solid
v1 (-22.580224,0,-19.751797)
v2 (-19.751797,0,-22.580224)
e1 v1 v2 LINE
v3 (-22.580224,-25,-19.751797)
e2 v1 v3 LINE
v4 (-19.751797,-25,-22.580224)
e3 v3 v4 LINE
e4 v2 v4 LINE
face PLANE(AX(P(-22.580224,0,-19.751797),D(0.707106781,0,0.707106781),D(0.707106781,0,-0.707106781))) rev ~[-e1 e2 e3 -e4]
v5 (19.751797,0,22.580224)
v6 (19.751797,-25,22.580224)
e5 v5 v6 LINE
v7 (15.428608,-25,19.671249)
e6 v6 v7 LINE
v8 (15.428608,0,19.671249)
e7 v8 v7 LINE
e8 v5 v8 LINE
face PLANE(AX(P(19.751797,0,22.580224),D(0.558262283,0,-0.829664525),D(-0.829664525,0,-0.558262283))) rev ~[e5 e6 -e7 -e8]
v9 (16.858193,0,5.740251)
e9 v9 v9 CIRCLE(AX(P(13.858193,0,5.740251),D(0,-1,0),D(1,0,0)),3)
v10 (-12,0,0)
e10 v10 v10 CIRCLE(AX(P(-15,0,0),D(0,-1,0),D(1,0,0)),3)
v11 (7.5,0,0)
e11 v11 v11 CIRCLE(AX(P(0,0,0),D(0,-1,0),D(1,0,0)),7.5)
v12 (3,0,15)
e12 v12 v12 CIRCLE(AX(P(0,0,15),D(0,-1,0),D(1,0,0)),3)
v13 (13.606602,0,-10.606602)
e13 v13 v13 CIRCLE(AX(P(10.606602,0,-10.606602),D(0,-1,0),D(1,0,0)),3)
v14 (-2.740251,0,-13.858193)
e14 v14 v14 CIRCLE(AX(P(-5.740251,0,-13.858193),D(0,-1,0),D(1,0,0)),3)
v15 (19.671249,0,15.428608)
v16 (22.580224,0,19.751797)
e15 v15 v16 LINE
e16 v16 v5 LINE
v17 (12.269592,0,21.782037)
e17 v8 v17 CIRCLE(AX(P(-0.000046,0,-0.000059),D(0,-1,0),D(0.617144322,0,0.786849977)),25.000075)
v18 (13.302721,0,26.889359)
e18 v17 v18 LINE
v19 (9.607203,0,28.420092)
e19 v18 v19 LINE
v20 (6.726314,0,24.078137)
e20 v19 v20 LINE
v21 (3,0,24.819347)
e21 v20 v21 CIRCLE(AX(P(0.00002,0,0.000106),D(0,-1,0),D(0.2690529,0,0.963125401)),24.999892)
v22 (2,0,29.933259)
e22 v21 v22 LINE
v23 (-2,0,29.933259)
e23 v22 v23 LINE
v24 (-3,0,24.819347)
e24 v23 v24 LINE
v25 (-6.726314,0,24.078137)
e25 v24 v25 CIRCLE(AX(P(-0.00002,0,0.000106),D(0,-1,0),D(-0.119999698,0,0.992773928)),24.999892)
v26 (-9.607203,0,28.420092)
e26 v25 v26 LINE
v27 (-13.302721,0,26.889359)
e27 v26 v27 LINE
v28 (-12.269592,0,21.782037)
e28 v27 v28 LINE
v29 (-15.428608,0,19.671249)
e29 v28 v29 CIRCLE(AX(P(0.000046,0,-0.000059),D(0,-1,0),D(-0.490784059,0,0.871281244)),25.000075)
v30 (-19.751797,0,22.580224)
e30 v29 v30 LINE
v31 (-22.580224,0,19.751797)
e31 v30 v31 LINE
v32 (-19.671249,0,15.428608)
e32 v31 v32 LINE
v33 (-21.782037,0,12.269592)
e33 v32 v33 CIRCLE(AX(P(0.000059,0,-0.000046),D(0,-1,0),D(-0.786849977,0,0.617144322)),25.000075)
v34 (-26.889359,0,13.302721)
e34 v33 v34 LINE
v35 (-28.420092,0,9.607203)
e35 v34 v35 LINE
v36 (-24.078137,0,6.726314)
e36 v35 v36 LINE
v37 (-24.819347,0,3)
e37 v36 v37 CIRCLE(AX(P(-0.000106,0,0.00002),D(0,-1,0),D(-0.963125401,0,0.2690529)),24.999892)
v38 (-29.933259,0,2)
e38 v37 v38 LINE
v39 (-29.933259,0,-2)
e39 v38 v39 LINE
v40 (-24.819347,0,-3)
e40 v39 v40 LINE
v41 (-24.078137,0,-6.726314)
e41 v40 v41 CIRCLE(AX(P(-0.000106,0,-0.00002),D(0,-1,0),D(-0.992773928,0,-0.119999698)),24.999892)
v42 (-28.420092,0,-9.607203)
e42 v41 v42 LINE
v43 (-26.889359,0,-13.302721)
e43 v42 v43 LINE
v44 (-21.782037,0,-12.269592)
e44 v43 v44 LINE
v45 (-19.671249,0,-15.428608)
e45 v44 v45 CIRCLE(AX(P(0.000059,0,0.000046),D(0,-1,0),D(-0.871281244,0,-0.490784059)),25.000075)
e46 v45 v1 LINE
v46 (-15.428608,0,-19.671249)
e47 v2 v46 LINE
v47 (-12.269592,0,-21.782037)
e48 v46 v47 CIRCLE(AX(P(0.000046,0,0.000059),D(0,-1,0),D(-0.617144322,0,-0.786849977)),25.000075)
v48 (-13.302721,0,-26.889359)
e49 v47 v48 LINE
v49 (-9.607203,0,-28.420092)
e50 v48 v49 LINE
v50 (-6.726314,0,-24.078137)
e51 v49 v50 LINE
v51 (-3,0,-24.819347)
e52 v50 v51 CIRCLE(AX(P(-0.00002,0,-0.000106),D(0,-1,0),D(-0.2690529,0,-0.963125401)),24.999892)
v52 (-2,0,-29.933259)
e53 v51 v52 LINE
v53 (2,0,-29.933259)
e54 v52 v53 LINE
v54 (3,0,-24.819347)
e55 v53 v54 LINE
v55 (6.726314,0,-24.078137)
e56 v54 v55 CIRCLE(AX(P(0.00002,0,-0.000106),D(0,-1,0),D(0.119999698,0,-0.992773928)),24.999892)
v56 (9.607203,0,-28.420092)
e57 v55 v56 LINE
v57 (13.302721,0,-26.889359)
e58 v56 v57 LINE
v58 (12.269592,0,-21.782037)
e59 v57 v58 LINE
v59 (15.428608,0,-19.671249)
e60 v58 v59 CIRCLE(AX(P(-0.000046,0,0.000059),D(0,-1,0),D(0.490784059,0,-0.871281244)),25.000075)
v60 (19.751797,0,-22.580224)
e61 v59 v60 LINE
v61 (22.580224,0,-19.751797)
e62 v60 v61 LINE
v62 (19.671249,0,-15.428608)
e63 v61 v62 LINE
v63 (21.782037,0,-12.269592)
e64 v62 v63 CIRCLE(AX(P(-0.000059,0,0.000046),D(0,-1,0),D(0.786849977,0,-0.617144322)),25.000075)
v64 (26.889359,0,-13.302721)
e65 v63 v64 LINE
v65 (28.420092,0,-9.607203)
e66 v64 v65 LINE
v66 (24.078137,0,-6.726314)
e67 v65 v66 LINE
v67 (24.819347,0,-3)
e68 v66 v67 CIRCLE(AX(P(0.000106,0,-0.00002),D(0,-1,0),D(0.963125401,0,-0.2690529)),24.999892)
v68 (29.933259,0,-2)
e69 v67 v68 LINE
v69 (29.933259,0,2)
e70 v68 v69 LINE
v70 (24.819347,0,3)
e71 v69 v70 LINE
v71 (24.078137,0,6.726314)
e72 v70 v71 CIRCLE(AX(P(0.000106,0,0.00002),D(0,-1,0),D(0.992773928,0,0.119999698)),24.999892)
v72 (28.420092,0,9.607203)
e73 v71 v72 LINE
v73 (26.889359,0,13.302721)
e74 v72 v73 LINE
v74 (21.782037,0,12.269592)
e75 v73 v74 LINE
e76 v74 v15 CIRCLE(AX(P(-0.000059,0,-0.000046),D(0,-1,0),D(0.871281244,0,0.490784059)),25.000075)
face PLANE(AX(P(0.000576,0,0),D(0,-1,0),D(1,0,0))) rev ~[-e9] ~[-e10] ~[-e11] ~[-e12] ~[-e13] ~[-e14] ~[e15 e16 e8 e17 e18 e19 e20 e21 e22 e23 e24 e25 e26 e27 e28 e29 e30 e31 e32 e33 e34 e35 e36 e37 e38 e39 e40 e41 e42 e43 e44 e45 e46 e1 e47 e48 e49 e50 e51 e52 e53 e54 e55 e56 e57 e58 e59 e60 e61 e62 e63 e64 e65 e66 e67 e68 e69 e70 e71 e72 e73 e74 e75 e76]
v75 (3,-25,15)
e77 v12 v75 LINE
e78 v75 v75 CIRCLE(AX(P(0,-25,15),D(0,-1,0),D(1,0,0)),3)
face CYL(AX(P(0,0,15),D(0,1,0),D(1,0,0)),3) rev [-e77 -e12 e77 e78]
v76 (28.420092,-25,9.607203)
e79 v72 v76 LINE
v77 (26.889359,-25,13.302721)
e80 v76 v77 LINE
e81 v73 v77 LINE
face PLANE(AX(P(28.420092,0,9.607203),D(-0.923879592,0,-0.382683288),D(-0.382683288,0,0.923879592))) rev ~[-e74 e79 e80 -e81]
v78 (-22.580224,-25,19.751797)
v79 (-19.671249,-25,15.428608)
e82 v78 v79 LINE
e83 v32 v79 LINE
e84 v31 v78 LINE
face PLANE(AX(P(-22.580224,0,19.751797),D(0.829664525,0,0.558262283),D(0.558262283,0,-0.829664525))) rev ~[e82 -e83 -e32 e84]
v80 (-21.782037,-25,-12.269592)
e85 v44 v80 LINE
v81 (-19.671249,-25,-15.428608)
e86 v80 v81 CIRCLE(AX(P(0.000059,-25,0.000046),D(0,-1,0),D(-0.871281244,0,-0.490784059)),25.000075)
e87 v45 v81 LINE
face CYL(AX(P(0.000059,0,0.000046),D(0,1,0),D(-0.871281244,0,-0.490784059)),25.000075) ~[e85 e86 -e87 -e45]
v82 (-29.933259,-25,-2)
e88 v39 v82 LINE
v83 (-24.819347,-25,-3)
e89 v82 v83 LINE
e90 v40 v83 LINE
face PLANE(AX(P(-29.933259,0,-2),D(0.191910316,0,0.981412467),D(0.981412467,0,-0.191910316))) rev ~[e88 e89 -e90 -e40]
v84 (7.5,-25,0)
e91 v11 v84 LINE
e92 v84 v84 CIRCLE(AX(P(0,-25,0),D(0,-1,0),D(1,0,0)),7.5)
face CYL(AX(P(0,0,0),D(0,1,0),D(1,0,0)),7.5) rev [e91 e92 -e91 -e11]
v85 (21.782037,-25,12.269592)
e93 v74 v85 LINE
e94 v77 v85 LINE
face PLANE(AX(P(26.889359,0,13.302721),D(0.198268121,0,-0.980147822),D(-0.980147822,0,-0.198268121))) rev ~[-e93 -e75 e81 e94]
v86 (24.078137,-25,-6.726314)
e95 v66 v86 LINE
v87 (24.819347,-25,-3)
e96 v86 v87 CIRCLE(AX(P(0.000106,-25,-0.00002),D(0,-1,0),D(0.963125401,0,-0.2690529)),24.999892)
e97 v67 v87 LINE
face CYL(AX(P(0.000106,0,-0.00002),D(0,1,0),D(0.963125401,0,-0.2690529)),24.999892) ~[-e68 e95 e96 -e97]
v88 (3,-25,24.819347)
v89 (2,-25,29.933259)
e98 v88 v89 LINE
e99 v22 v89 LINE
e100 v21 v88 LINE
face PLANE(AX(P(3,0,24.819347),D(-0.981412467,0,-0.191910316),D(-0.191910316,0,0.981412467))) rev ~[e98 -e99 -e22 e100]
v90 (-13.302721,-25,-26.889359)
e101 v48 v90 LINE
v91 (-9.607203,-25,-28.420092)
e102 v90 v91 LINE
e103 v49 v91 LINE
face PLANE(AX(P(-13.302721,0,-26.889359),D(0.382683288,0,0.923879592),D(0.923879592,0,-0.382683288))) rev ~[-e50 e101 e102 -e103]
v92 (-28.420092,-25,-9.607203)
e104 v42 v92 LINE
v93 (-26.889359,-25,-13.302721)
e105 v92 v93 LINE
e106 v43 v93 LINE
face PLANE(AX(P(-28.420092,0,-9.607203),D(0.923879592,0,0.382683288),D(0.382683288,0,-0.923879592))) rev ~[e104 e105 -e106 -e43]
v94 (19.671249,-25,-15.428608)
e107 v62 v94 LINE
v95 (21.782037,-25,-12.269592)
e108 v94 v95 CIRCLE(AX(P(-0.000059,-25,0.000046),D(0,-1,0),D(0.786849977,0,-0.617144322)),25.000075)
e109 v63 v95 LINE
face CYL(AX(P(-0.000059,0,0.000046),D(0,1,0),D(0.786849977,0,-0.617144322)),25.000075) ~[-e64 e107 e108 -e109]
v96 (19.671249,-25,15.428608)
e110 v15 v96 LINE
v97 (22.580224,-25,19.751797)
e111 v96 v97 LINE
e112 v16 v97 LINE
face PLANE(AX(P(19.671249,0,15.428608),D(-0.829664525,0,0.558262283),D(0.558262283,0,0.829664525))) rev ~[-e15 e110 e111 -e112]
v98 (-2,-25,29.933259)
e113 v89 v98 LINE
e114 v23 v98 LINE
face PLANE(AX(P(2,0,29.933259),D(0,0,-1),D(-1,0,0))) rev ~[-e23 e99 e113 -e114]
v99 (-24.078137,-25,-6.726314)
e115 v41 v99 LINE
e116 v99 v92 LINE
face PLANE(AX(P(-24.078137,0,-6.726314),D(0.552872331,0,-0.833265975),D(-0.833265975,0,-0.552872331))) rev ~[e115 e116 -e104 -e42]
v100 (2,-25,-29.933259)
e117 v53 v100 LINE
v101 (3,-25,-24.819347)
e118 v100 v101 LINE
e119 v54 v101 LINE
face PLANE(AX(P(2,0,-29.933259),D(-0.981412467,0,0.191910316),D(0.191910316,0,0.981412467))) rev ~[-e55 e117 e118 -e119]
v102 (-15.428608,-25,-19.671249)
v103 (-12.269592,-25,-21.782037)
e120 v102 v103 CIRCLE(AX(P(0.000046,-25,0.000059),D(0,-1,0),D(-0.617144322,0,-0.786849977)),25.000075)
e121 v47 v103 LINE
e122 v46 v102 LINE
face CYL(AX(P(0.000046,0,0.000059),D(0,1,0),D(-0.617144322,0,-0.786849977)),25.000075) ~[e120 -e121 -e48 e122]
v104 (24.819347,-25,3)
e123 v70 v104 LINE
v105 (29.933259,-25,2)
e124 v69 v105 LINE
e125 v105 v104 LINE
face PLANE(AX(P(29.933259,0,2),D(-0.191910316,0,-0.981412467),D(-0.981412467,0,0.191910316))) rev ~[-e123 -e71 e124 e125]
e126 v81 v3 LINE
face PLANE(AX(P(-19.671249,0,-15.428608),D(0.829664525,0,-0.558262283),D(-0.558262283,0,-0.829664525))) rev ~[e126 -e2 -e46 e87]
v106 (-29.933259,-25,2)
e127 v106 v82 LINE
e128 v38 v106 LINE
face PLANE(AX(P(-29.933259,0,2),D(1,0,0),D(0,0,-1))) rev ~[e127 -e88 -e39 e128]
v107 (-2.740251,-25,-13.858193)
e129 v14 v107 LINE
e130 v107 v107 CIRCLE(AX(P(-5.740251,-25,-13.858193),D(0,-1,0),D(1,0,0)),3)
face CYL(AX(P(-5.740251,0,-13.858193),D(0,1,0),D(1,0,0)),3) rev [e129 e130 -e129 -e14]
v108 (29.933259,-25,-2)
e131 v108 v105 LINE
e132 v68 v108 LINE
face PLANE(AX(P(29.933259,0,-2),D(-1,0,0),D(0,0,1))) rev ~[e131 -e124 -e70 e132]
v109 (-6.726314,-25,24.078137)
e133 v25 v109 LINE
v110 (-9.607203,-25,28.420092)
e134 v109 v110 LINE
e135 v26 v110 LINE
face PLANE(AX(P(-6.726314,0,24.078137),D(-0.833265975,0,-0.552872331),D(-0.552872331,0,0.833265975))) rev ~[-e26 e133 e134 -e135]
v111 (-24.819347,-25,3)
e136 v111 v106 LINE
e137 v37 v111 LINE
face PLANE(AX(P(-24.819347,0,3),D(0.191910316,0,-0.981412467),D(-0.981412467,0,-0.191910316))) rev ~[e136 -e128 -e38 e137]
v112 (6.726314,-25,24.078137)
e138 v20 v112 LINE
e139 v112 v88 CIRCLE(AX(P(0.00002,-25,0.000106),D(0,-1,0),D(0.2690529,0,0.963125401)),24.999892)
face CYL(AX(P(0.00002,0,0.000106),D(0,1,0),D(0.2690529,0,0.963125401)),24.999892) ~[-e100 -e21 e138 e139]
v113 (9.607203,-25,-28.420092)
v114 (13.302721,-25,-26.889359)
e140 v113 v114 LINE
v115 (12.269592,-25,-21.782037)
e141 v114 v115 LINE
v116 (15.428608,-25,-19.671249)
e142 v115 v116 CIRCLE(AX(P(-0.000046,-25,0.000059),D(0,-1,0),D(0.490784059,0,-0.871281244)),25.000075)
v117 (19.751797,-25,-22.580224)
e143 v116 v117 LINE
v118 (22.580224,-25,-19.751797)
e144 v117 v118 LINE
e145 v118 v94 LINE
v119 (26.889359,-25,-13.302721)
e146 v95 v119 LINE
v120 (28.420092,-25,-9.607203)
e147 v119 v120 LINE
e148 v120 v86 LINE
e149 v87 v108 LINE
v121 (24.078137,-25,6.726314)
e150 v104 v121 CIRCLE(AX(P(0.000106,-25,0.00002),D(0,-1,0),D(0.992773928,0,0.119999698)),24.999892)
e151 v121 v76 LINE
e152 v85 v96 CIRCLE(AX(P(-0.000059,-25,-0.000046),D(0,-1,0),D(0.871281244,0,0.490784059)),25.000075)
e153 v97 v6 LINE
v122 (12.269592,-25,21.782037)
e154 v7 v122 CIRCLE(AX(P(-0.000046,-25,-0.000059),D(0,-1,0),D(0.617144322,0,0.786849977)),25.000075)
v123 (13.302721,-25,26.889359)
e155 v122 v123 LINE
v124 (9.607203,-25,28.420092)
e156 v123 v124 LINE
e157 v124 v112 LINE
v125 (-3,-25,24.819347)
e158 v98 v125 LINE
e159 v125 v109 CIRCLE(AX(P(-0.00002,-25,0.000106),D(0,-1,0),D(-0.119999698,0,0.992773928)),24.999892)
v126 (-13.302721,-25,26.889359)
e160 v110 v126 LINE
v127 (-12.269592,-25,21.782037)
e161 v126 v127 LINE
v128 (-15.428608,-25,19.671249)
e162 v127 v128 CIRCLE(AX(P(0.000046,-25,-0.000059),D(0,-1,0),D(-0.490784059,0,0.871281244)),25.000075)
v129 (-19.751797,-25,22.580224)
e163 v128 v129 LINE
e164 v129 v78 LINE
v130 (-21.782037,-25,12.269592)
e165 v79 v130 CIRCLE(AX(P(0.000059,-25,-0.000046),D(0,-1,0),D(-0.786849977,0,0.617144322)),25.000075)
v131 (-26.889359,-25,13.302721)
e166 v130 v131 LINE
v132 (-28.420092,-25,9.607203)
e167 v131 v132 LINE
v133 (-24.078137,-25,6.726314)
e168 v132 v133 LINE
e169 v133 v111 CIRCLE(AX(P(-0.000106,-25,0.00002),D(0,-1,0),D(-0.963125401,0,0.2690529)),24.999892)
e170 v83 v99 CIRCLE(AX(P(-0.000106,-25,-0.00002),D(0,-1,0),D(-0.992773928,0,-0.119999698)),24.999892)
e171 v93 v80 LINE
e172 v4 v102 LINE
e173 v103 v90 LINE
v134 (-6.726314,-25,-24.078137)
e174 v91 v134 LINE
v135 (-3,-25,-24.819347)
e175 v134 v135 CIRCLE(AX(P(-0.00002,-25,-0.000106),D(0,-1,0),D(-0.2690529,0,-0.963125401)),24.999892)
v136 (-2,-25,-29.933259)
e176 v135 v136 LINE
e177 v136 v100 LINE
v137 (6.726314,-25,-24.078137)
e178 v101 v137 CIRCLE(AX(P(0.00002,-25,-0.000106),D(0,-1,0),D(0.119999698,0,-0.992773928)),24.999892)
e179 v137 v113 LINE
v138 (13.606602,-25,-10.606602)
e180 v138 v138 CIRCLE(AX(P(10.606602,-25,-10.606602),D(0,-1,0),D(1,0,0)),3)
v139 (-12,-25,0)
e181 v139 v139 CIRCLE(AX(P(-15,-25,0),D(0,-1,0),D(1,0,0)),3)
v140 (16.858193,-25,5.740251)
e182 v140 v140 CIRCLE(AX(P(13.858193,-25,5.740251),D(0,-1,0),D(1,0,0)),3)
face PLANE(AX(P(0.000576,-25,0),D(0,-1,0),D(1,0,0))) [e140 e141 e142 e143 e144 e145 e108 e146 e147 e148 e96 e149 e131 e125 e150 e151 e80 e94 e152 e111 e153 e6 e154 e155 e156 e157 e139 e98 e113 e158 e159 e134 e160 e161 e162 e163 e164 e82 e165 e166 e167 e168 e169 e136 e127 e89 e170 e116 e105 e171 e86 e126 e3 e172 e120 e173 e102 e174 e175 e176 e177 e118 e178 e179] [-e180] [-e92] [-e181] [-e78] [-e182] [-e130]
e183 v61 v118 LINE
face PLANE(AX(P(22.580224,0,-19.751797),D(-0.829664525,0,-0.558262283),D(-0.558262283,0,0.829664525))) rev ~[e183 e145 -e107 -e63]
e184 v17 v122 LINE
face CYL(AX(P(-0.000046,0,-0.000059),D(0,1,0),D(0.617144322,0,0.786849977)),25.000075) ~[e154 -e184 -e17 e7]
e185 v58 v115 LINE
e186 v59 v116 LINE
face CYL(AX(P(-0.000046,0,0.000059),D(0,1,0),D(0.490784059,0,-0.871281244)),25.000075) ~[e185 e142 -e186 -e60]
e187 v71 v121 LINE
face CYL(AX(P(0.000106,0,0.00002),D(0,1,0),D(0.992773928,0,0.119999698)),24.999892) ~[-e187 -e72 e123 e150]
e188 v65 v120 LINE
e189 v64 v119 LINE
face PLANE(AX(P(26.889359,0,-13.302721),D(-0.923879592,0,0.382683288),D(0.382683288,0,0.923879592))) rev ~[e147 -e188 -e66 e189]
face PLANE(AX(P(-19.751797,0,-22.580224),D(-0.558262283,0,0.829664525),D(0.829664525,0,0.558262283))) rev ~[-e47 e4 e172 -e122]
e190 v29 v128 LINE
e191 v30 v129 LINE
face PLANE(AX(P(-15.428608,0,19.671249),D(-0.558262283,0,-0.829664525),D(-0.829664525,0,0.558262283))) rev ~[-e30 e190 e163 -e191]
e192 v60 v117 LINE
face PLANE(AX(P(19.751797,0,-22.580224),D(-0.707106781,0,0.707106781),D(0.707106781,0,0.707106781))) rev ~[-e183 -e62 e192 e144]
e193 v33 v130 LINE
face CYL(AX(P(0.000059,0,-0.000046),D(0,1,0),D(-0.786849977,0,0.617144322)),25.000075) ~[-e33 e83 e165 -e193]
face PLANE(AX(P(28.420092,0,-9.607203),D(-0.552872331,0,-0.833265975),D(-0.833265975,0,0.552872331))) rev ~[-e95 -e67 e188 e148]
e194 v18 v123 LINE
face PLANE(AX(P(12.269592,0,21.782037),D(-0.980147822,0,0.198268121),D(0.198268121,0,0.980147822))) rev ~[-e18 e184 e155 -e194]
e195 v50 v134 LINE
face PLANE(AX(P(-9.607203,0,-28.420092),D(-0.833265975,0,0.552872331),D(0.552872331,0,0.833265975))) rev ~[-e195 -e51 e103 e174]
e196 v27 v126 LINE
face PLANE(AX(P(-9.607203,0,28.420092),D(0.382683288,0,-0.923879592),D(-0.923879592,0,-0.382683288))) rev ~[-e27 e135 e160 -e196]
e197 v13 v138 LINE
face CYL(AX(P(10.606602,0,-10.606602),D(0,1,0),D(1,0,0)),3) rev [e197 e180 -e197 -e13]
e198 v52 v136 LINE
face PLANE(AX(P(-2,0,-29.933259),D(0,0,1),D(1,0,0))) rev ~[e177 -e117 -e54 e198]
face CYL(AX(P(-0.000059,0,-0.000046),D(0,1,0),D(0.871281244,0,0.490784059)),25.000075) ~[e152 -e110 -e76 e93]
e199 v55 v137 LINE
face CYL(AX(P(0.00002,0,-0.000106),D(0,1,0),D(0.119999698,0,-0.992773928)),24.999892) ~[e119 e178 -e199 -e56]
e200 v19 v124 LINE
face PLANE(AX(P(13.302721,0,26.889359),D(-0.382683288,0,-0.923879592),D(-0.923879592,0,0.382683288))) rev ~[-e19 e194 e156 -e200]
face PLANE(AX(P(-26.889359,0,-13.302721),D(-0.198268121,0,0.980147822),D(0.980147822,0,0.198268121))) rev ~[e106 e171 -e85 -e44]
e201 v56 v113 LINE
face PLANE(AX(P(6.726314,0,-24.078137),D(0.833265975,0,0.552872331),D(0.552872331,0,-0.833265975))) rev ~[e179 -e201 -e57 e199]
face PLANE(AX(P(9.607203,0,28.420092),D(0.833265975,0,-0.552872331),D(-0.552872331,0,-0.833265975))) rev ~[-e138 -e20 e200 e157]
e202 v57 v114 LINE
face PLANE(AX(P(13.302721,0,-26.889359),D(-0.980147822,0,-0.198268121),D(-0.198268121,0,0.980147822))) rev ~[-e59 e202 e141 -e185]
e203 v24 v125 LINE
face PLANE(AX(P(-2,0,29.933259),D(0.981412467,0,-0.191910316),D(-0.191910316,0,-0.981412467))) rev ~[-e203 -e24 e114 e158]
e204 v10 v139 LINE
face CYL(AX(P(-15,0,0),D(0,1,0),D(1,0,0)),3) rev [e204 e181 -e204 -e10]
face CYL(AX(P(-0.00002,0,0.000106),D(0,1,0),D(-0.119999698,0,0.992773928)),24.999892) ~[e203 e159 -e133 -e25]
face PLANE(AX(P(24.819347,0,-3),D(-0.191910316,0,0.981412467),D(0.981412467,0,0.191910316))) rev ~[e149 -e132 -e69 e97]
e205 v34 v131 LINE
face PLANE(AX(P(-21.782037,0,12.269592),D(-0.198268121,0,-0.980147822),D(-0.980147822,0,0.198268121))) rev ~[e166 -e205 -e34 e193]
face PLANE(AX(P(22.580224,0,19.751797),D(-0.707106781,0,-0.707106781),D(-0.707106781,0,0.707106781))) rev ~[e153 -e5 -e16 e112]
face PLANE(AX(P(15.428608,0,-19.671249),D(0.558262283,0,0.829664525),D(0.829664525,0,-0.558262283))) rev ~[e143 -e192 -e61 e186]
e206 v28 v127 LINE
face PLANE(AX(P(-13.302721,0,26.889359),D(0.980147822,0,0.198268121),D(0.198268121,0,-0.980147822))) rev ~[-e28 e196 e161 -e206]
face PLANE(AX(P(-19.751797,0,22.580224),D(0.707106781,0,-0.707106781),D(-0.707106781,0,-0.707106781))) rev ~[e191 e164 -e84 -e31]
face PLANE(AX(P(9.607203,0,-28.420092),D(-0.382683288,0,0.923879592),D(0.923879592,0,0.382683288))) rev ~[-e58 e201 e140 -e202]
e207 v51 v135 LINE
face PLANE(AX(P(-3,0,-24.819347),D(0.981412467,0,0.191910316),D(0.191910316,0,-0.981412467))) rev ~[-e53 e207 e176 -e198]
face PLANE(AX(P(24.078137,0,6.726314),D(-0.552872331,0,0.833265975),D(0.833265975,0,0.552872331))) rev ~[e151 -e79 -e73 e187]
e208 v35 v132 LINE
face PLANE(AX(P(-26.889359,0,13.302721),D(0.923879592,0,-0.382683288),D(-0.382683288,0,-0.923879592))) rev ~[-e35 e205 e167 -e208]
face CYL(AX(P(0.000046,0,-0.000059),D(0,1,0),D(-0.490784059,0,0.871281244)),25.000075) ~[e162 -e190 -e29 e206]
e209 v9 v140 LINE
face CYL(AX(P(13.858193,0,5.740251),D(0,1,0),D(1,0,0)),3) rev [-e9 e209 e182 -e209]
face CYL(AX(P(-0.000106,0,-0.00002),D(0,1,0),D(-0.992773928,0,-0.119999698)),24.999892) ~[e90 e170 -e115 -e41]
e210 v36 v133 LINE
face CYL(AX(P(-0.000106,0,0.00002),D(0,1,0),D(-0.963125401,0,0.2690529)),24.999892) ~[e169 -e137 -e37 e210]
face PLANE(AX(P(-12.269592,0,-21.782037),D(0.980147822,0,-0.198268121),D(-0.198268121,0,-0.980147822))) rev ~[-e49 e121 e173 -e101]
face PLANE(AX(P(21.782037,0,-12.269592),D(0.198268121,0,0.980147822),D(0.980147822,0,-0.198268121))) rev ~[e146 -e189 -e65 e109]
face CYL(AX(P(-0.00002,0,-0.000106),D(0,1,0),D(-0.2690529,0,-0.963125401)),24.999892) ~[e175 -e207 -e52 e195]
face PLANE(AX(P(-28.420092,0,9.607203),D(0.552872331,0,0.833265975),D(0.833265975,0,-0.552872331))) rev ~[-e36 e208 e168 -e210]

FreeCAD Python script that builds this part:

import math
import FreeCAD as App
import Part
import Sketcher
from FreeCAD import Vector
Q = App.Units.Quantity

doc = App.newDocument("Part")
body = doc.addObject("PartDesign::Body", "Body")

sketch1 = doc.addObject("Sketcher::SketchObject", "Sketch")
body.addObject(sketch1)
sketch1.AttachmentSupport = (doc.XZ_Plane, [""])
sketch1.MapMode = "FlatFace"
sketch1.addGeometry(Part.ArcOfCircle(Part.Circle(Vector(0.000106, -0.00002, 0), Vector(0, 0, 1), 24.999892), math.radians(-15.607917), math.radians(-6.892085)), False)
sketch1.addGeometry(Part.LineSegment(Vector(24.819347, -3, 0), Vector(29.933259, -2, 0)), False)
sketch1.addGeometry(Part.LineSegment(Vector(29.933259, -2, 0), Vector(29.933259, 2, 0)), False)
sketch1.addGeometry(Part.LineSegment(Vector(29.933259, 2, 0), Vector(24.819347, 3, 0)), False)
sketch1.addGeometry(Part.ArcOfCircle(Part.Circle(Vector(0.000106, 0.00002, 0), Vector(0, 0, 1), 24.999892), math.radians(6.892085), math.radians(15.607917)), False)
sketch1.addGeometry(Part.LineSegment(Vector(24.078137, 6.726314, 0), Vector(28.420092, 9.607203, 0)), False)
sketch1.addGeometry(Part.LineSegment(Vector(28.420092, 9.607203, 0), Vector(26.889359, 13.302721, 0)), False)
sketch1.addGeometry(Part.LineSegment(Vector(26.889359, 13.302721, 0), Vector(21.782037, 12.269592, 0)), False)
sketch1.addGeometry(Part.ArcOfCircle(Part.Circle(Vector(-0.000059, -0.000046, 0), Vector(0, 0, 1), 25.000075), math.radians(29.392129), math.radians(38.107896)), False)
sketch1.addGeometry(Part.LineSegment(Vector(19.671249, 15.428608, 0), Vector(22.580224, 19.751797, 0)), False)
sketch1.addGeometry(Part.LineSegment(Vector(22.580224, 19.751797, 0), Vector(19.751797, 22.580224, 0)), False)
sketch1.addGeometry(Part.LineSegment(Vector(19.751797, 22.580224, 0), Vector(15.428608, 19.671249, 0)), False)
sketch1.addGeometry(Part.ArcOfCircle(Part.Circle(Vector(-0.000046, -0.000059, 0), Vector(0, 0, 1), 25.000075), math.radians(51.892104), math.radians(60.607871)), False)
sketch1.addGeometry(Part.LineSegment(Vector(12.269592, 21.782037, 0), Vector(13.302721, 26.889359, 0)), False)
sketch1.addGeometry(Part.LineSegment(Vector(13.302721, 26.889359, 0), Vector(9.607203, 28.420092, 0)), False)
sketch1.addGeometry(Part.LineSegment(Vector(9.607203, 28.420092, 0), Vector(6.726314, 24.078137, 0)), False)
sketch1.addGeometry(Part.ArcOfCircle(Part.Circle(Vector(0.00002, 0.000106, 0), Vector(0, 0, 1), 24.999892), math.radians(74.392083), math.radians(83.107915)), False)
sketch1.addGeometry(Part.LineSegment(Vector(3, 24.819347, 0), Vector(2, 29.933259, 0)), False)
sketch1.addGeometry(Part.LineSegment(Vector(2, 29.933259, 0), Vector(-2, 29.933259, 0)), False)
sketch1.addGeometry(Part.LineSegment(Vector(-2, 29.933259, 0), Vector(-3, 24.819347, 0)), False)
sketch1.addGeometry(Part.ArcOfCircle(Part.Circle(Vector(-0.00002, 0.000106, 0), Vector(0, 0, 1), 24.999892), math.radians(96.892085), math.radians(105.607917)), False)
sketch1.addGeometry(Part.LineSegment(Vector(-6.726314, 24.078137, 0), Vector(-9.607203, 28.420092, 0)), False)
sketch1.addGeometry(Part.LineSegment(Vector(-9.607203, 28.420092, 0), Vector(-13.302721, 26.889359, 0)), False)
sketch1.addGeometry(Part.LineSegment(Vector(-13.302721, 26.889359, 0), Vector(-12.269592, 21.782037, 0)), False)
sketch1.addGeometry(Part.ArcOfCircle(Part.Circle(Vector(0.000046, -0.000059, 0), Vector(0, 0, 1), 25.000075), math.radians(119.392129), math.radians(128.107896)), False)
sketch1.addGeometry(Part.LineSegment(Vector(-15.428608, 19.671249, 0), Vector(-19.751797, 22.580224, 0)), False)
sketch1.addGeometry(Part.LineSegment(Vector(-19.751797, 22.580224, 0), Vector(-22.580224, 19.751797, 0)), False)
sketch1.addGeometry(Part.LineSegment(Vector(-22.580224, 19.751797, 0), Vector(-19.671249, 15.428608, 0)), False)
sketch1.addGeometry(Part.ArcOfCircle(Part.Circle(Vector(0.000059, -0.000046, 0), Vector(0, 0, 1), 25.000075), math.radians(141.892104), math.radians(150.607871)), False)
sketch1.addGeometry(Part.LineSegment(Vector(-21.782037, 12.269592, 0), Vector(-26.889359, 13.302721, 0)), False)
sketch1.addGeometry(Part.LineSegment(Vector(-26.889359, 13.302721, 0), Vector(-28.420092, 9.607203, 0)), False)
sketch1.addGeometry(Part.LineSegment(Vector(-28.420092, 9.607203, 0), Vector(-24.078137, 6.726314, 0)), False)
sketch1.addGeometry(Part.ArcOfCircle(Part.Circle(Vector(-0.000106, 0.00002, 0), Vector(0, 0, 1), 24.999892), math.radians(164.392083), math.radians(173.107915)), False)
sketch1.addGeometry(Part.LineSegment(Vector(-24.819347, 3, 0), Vector(-29.933259, 2, 0)), False)
sketch1.addGeometry(Part.LineSegment(Vector(-29.933259, 2, 0), Vector(-29.933259, -2, 0)), False)
sketch1.addGeometry(Part.LineSegment(Vector(-29.933259, -2, 0), Vector(-24.819347, -3, 0)), False)
sketch1.addGeometry(Part.ArcOfCircle(Part.Circle(Vector(-0.000106, -0.00002, 0), Vector(0, 0, 1), 24.999892), math.radians(-173.107915), math.radians(-164.392083)), False)
sketch1.addGeometry(Part.LineSegment(Vector(-24.078137, -6.726314, 0), Vector(-28.420092, -9.607203, 0)), False)
sketch1.addGeometry(Part.LineSegment(Vector(-28.420092, -9.607203, 0), Vector(-26.889359, -13.302721, 0)), False)
sketch1.addGeometry(Part.LineSegment(Vector(-26.889359, -13.302721, 0), Vector(-21.782037, -12.269592, 0)), False)
sketch1.addGeometry(Part.ArcOfCircle(Part.Circle(Vector(0.000059, 0.000046, 0), Vector(0, 0, 1), 25.000075), math.radians(-150.607871), math.radians(-141.892104)), False)
sketch1.addGeometry(Part.LineSegment(Vector(-19.671249, -15.428608, 0), Vector(-22.580224, -19.751797, 0)), False)
sketch1.addGeometry(Part.LineSegment(Vector(-22.580224, -19.751797, 0), Vector(-19.751797, -22.580224, 0)), False)
sketch1.addGeometry(Part.LineSegment(Vector(-19.751797, -22.580224, 0), Vector(-15.428608, -19.671249, 0)), False)
sketch1.addGeometry(Part.ArcOfCircle(Part.Circle(Vector(0.000046, 0.000059, 0), Vector(0, 0, 1), 25.000075), math.radians(-128.107896), math.radians(-119.392129)), False)
sketch1.addGeometry(Part.LineSegment(Vector(-12.269592, -21.782037, 0), Vector(-13.302721, -26.889359, 0)), False)
sketch1.addGeometry(Part.LineSegment(Vector(-13.302721, -26.889359, 0), Vector(-9.607203, -28.420092, 0)), False)
sketch1.addGeometry(Part.LineSegment(Vector(-9.607203, -28.420092, 0), Vector(-6.726314, -24.078137, 0)), False)
sketch1.addGeometry(Part.ArcOfCircle(Part.Circle(Vector(-0.00002, -0.000106, 0), Vector(0, 0, 1), 24.999892), math.radians(-105.607917), math.radians(-96.892085)), False)
sketch1.addGeometry(Part.LineSegment(Vector(-3, -24.819347, 0), Vector(-2, -29.933259, 0)), False)
sketch1.addGeometry(Part.LineSegment(Vector(-2, -29.933259, 0), Vector(2, -29.933259, 0)), False)
sketch1.addGeometry(Part.LineSegment(Vector(2, -29.933259, 0), Vector(3, -24.819347, 0)), False)
sketch1.addGeometry(Part.ArcOfCircle(Part.Circle(Vector(0.00002, -0.000106, 0), Vector(0, 0, 1), 24.999892), math.radians(-83.107915), math.radians(-74.392083)), False)
sketch1.addGeometry(Part.LineSegment(Vector(6.726314, -24.078137, 0), Vector(9.607203, -28.420092, 0)), False)
sketch1.addGeometry(Part.LineSegment(Vector(9.607203, -28.420092, 0), Vector(13.302721, -26.889359, 0)), False)
sketch1.addGeometry(Part.LineSegment(Vector(13.302721, -26.889359, 0), Vector(12.269592, -21.782037, 0)), False)
sketch1.addGeometry(Part.ArcOfCircle(Part.Circle(Vector(-0.000046, 0.000059, 0), Vector(0, 0, 1), 25.000075), math.radians(-60.607871), math.radians(-51.892104)), False)
sketch1.addGeometry(Part.LineSegment(Vector(15.428608, -19.671249, 0), Vector(19.751797, -22.580224, 0)), False)
sketch1.addGeometry(Part.LineSegment(Vector(19.751797, -22.580224, 0), Vector(22.580224, -19.751797, 0)), False)
sketch1.addGeometry(Part.LineSegment(Vector(22.580224, -19.751797, 0), Vector(19.671249, -15.428608, 0)), False)
sketch1.addGeometry(Part.ArcOfCircle(Part.Circle(Vector(-0.000059, 0.000046, 0), Vector(0, 0, 1), 25.000075), math.radians(-38.107896), math.radians(-29.392129)), False)
sketch1.addGeometry(Part.LineSegment(Vector(21.782037, -12.269592, 0), Vector(26.889359, -13.302721, 0)), False)
sketch1.addGeometry(Part.LineSegment(Vector(26.889359, -13.302721, 0), Vector(28.420092, -9.607203, 0)), False)
sketch1.addGeometry(Part.LineSegment(Vector(28.420092, -9.607203, 0), Vector(24.078137, -6.726314, 0)), False)
sketch1.addGeometry(Part.Circle(Vector(-5.740251, -13.858193, 0), Vector(0, 0, 1), 3), False)
sketch1.addGeometry(Part.Circle(Vector(-15, 0, 0), Vector(0, 0, 1), 3), False)
sketch1.addGeometry(Part.Circle(Vector(10.606602, -10.606602, 0), Vector(0, 0, 1), 3), False)
sketch1.addGeometry(Part.Circle(Vector(0, 0, 0), Vector(0, 0, 1), 7.5), False)
sketch1.addGeometry(Part.Circle(Vector(13.858193, 5.740251, 0), Vector(0, 0, 1), 3), False)
sketch1.addGeometry(Part.Circle(Vector(0, 15, 0), Vector(0, 0, 1), 3), False)
sketch1.addConstraint(Sketcher.Constraint("Coincident", 0, 2, 1, 1))
sketch1.addConstraint(Sketcher.Constraint("Coincident", 1, 2, 2, 1))
sketch1.addConstraint(Sketcher.Constraint("Coincident", 2, 2, 3, 1))
sketch1.addConstraint(Sketcher.Constraint("Coincident", 3, 2, 4, 1))
sketch1.addConstraint(Sketcher.Constraint("Coincident", 4, 2, 5, 1))
sketch1.addConstraint(Sketcher.Constraint("Coincident", 5, 2, 6, 1))
sketch1.addConstraint(Sketcher.Constraint("Coincident", 6, 2, 7, 1))
sketch1.addConstraint(Sketcher.Constraint("Coincident", 7, 2, 8, 1))
sketch1.addConstraint(Sketcher.Constraint("Coincident", 8, 2, 9, 1))
sketch1.addConstraint(Sketcher.Constraint("Coincident", 9, 2, 10, 1))
sketch1.addConstraint(Sketcher.Constraint("Coincident", 10, 2, 11, 1))
sketch1.addConstraint(Sketcher.Constraint("Coincident", 11, 2, 12, 1))
sketch1.addConstraint(Sketcher.Constraint("Coincident", 12, 2, 13, 1))
sketch1.addConstraint(Sketcher.Constraint("Coincident", 13, 2, 14, 1))
sketch1.addConstraint(Sketcher.Constraint("Coincident", 14, 2, 15, 1))
sketch1.addConstraint(Sketcher.Constraint("Coincident", 15, 2, 16, 1))
sketch1.addConstraint(Sketcher.Constraint("Coincident", 16, 2, 17, 1))
sketch1.addConstraint(Sketcher.Constraint("Coincident", 17, 2, 18, 1))
sketch1.addConstraint(Sketcher.Constraint("Coincident", 18, 2, 19, 1))
sketch1.addConstraint(Sketcher.Constraint("Coincident", 19, 2, 20, 1))
sketch1.addConstraint(Sketcher.Constraint("Coincident", 20, 2, 21, 1))
sketch1.addConstraint(Sketcher.Constraint("Coincident", 21, 2, 22, 1))
sketch1.addConstraint(Sketcher.Constraint("Coincident", 22, 2, 23, 1))
sketch1.addConstraint(Sketcher.Constraint("Coincident", 23, 2, 24, 1))
sketch1.addConstraint(Sketcher.Constraint("Coincident", 24, 2, 25, 1))
sketch1.addConstraint(Sketcher.Constraint("Coincident", 25, 2, 26, 1))
sketch1.addConstraint(Sketcher.Constraint("Coincident", 26, 2, 27, 1))
sketch1.addConstraint(Sketcher.Constraint("Coincident", 27, 2, 28, 1))
sketch1.addConstraint(Sketcher.Constraint("Coincident", 28, 2, 29, 1))
sketch1.addConstraint(Sketcher.Constraint("Coincident", 29, 2, 30, 1))
sketch1.addConstraint(Sketcher.Constraint("Coincident", 30, 2, 31, 1))
sketch1.addConstraint(Sketcher.Constraint("Coincident", 31, 2, 32, 1))
sketch1.addConstraint(Sketcher.Constraint("Coincident", 32, 2, 33, 1))
sketch1.addConstraint(Sketcher.Constraint("Coincident", 33, 2, 34, 1))
sketch1.addConstraint(Sketcher.Constraint("Coincident", 34, 2, 35, 1))
sketch1.addConstraint(Sketcher.Constraint("Coincident", 35, 2, 36, 1))
sketch1.addConstraint(Sketcher.Constraint("Coincident", 36, 2, 37, 1))
sketch1.addConstraint(Sketcher.Constraint("Coincident", 37, 2, 38, 1))
sketch1.addConstraint(Sketcher.Constraint("Coincident", 38, 2, 39, 1))
sketch1.addConstraint(Sketcher.Constraint("Coincident", 39, 2, 40, 1))
sketch1.addConstraint(Sketcher.Constraint("Coincident", 40, 2, 41, 1))
sketch1.addConstraint(Sketcher.Constraint("Coincident", 41, 2, 42, 1))
sketch1.addConstraint(Sketcher.Constraint("Coincident", 42, 2, 43, 1))
sketch1.addConstraint(Sketcher.Constraint("Coincident", 43, 2, 44, 1))
sketch1.addConstraint(Sketcher.Constraint("Coincident", 44, 2, 45, 1))
sketch1.addConstraint(Sketcher.Constraint("Coincident", 45, 2, 46, 1))
sketch1.addConstraint(Sketcher.Constraint("Coincident", 46, 2, 47, 1))
sketch1.addConstraint(Sketcher.Constraint("Coincident", 47, 2, 48, 1))
sketch1.addConstraint(Sketcher.Constraint("Coincident", 48, 2, 49, 1))
sketch1.addConstraint(Sketcher.Constraint("Coincident", 49, 2, 50, 1))
sketch1.addConstraint(Sketcher.Constraint("Coincident", 50, 2, 51, 1))
sketch1.addConstraint(Sketcher.Constraint("Coincident", 51, 2, 52, 1))
sketch1.addConstraint(Sketcher.Constraint("Coincident", 52, 2, 53, 1))
sketch1.addConstraint(Sketcher.Constraint("Coincident", 53, 2, 54, 1))
sketch1.addConstraint(Sketcher.Constraint("Coincident", 54, 2, 55, 1))
sketch1.addConstraint(Sketcher.Constraint("Coincident", 55, 2, 56, 1))
sketch1.addConstraint(Sketcher.Constraint("Coincident", 56, 2, 57, 1))
sketch1.addConstraint(Sketcher.Constraint("Coincident", 57, 2, 58, 1))
sketch1.addConstraint(Sketcher.Constraint("Coincident", 58, 2, 59, 1))
sketch1.addConstraint(Sketcher.Constraint("Coincident", 59, 2, 60, 1))
sketch1.addConstraint(Sketcher.Constraint("Coincident", 60, 2, 61, 1))
sketch1.addConstraint(Sketcher.Constraint("Coincident", 61, 2, 62, 1))
sketch1.addConstraint(Sketcher.Constraint("Coincident", 62, 2, 63, 1))
sketch1.addConstraint(Sketcher.Constraint("Coincident", 63, 2, 0, 1))
sketch1.addConstraint(Sketcher.Constraint("Vertical", 2))
sketch1.addConstraint(Sketcher.Constraint("Horizontal", 18))
sketch1.addConstraint(Sketcher.Constraint("Vertical", 34))
sketch1.addConstraint(Sketcher.Constraint("Horizontal", 50))
sketch1.addConstraint(Sketcher.Constraint("Coincident", 67, 3, -1, 1))
sketch1.addConstraint(Sketcher.Constraint("Equal", 0, 4))
sketch1.addConstraint(Sketcher.Constraint("Equal", 8, 12))
sketch1.addConstraint(Sketcher.Constraint("Equal", 4, 16))
sketch1.addConstraint(Sketcher.Constraint("Equal", 16, 20))
sketch1.addConstraint(Sketcher.Constraint("Equal", 12, 24))
sketch1.addConstraint(Sketcher.Constraint("Equal", 24, 28))
sketch1.addConstraint(Sketcher.Constraint("Equal", 20, 32))
sketch1.addConstraint(Sketcher.Constraint("Equal", 32, 36))
sketch1.addConstraint(Sketcher.Constraint("Equal", 28, 40))
sketch1.addConstraint(Sketcher.Constraint("Equal", 40, 44))
sketch1.addConstraint(Sketcher.Constraint("Equal", 36, 48))
sketch1.addConstraint(Sketcher.Constraint("Equal", 48, 52))
sketch1.addConstraint(Sketcher.Constraint("Equal", 44, 56))
sketch1.addConstraint(Sketcher.Constraint("Equal", 56, 60))
sketch1.addConstraint(Sketcher.Constraint("Equal", 64, 65))
sketch1.addConstraint(Sketcher.Constraint("Equal", 65, 66))
sketch1.addConstraint(Sketcher.Constraint("Equal", 66, 68))
sketch1.addConstraint(Sketcher.Constraint("Equal", 68, 69))
sketch1.addConstraint(Sketcher.Constraint("Symmetric", 0, 3, 32, 3, -1, 1))
sketch1.addConstraint(Sketcher.Constraint("Symmetric", 4, 3, 36, 3, -1, 1))
sketch1.addConstraint(Sketcher.Constraint("Symmetric", 8, 3, 40, 3, -1, 1))
sketch1.addConstraint(Sketcher.Constraint("Symmetric", 12, 3, 44, 3, -1, 1))
sketch1.addConstraint(Sketcher.Constraint("Symmetric", 16, 3, 48, 3, -1, 1))
sketch1.addConstraint(Sketcher.Constraint("Symmetric", 20, 3, 52, 3, -1, 1))
sketch1.addConstraint(Sketcher.Constraint("Symmetric", 24, 3, 56, 3, -1, 1))
sketch1.addConstraint(Sketcher.Constraint("Symmetric", 28, 3, 60, 3, -1, 1))
sketch1.addConstraint(Sketcher.Constraint("Symmetric", 1, 2, 33, 2, -1, 1))
sketch1.addConstraint(Sketcher.Constraint("Symmetric", 5, 2, 37, 2, -1, 1))
sketch1.addConstraint(Sketcher.Constraint("Symmetric", 6, 2, 38, 2, -1, 1))
sketch1.addConstraint(Sketcher.Constraint("Symmetric", 9, 2, 41, 2, -1, 1))
sketch1.addConstraint(Sketcher.Constraint("Symmetric", 10, 2, 42, 2, -1, 1))
sketch1.addConstraint(Sketcher.Constraint("Symmetric", 13, 2, 45, 2, -1, 1))
sketch1.addConstraint(Sketcher.Constraint("Symmetric", 14, 2, 46, 2, -1, 1))
sketch1.addConstraint(Sketcher.Constraint("Symmetric", 17, 2, 49, 2, -1, 1))
sketch1.addConstraint(Sketcher.Constraint("Symmetric", 21, 2, 53, 2, -1, 1))
sketch1.addConstraint(Sketcher.Constraint("Symmetric", 22, 2, 54, 2, -1, 1))
sketch1.addConstraint(Sketcher.Constraint("Symmetric", 25, 2, 57, 2, -1, 1))
sketch1.addConstraint(Sketcher.Constraint("Symmetric", 26, 2, 58, 2, -1, 1))
sketch1.addConstraint(Sketcher.Constraint("Symmetric", 29, 2, 61, 2, -1, 1))
sketch1.addConstraint(Sketcher.Constraint("Symmetric", 30, 2, 62, 2, -1, 1))
sketch1.addConstraint(Sketcher.Constraint("Symmetric", 16, 3, 20, 3, -2))
sketch1.addConstraint(Sketcher.Constraint("Symmetric", 12, 3, 24, 3, -2))
sketch1.addConstraint(Sketcher.Constraint("Symmetric", 8, 3, 28, 3, -2))
sketch1.addConstraint(Sketcher.Constraint("Symmetric", 4, 3, 32, 3, -2))
sketch1.addConstraint(Sketcher.Constraint("Symmetric", 14, 2, 21, 2, -2))
sketch1.addConstraint(Sketcher.Constraint("Symmetric", 13, 2, 22, 2, -2))
sketch1.addConstraint(Sketcher.Constraint("Symmetric", 10, 2, 25, 2, -2))
sketch1.addConstraint(Sketcher.Constraint("Symmetric", 9, 2, 26, 2, -2))
sketch1.addConstraint(Sketcher.Constraint("Symmetric", 6, 2, 29, 2, -2))
sketch1.addConstraint(Sketcher.Constraint("Symmetric", 5, 2, 30, 2, -2))
sketch1.addConstraint(Sketcher.Constraint("PointOnObject", 65, 3, -1))
sketch1.addConstraint(Sketcher.Constraint("PointOnObject", 69, 3, -2))
sketch1.addConstraint(Sketcher.Constraint("Perpendicular", 1, 17))
sketch1.addConstraint(Sketcher.Constraint("Perpendicular", 3, 19))
sketch1.addConstraint(Sketcher.Constraint("Perpendicular", 5, 21))
sketch1.addConstraint(Sketcher.Constraint("Perpendicular", 6, 22))
sketch1.addConstraint(Sketcher.Constraint("Perpendicular", 7, 23))
sketch1.addConstraint(Sketcher.Constraint("Perpendicular", 9, 25))
sketch1.addConstraint(Sketcher.Constraint("Perpendicular", 10, 26))
sketch1.addConstraint(Sketcher.Constraint("Perpendicular", 11, 27))
sketch1.addConstraint(Sketcher.Constraint("Perpendicular", 13, 29))
sketch1.addConstraint(Sketcher.Constraint("Perpendicular", 15, 31))
sketch1.addConstraint(Sketcher.Constraint("Perpendicular", 17, 33))
sketch1.addConstraint(Sketcher.Constraint("Perpendicular", 19, 35))
sketch1.addConstraint(Sketcher.Constraint("Perpendicular", 21, 37))
sketch1.addConstraint(Sketcher.Constraint("Perpendicular", 23, 39))
sketch1.addConstraint(Sketcher.Constraint("Perpendicular", 25, 41))
sketch1.addConstraint(Sketcher.Constraint("Perpendicular", 27, 43))
sketch1.addConstraint(Sketcher.Constraint("Perpendicular", 29, 45))
sketch1.addConstraint(Sketcher.Constraint("Perpendicular", 31, 47))
sketch1.addConstraint(Sketcher.Constraint("Perpendicular", 33, 49))
sketch1.addConstraint(Sketcher.Constraint("Perpendicular", 35, 51))
sketch1.addConstraint(Sketcher.Constraint("Perpendicular", 37, 53))
sketch1.addConstraint(Sketcher.Constraint("Perpendicular", 39, 55))
sketch1.addConstraint(Sketcher.Constraint("Perpendicular", 41, 57))
sketch1.addConstraint(Sketcher.Constraint("Perpendicular", 43, 59))
sketch1.addConstraint(Sketcher.Constraint("Perpendicular", 45, 61))
sketch1.addConstraint(Sketcher.Constraint("Perpendicular", 47, 63))
sketch1.addConstraint(Sketcher.Constraint("Horizontal", 16, 2, 19, 2))
sketch1.addConstraint(Sketcher.Constraint("Horizontal", 15, 2, 20, 2))
sketch1.addConstraint(Sketcher.Constraint("Horizontal", 12, 2, 23, 2))
sketch1.addConstraint(Sketcher.Constraint("Horizontal", 11, 2, 24, 2))
sketch1.addConstraint(Sketcher.Constraint("Horizontal", 3, 2, 32, 2))
sketch1.addConstraint(Sketcher.Constraint("Horizontal", 2, 2, 33, 2))
sketch1.addConstraint(Sketcher.Constraint("Horizontal", 1, 2, 34, 2))
sketch1.addConstraint(Sketcher.Constraint("Horizontal", 48, 2, 51, 2))
sketch1.addConstraint(Sketcher.Constraint("Equal", 50, 2))
sketch1.addConstraint(Sketcher.Constraint("Equal", 3, 5))
sketch1.addConstraint(Sketcher.Constraint("Equal", 5, 7))
sketch1.addConstraint(Sketcher.Constraint("Equal", 7, 9))
sketch1.addConstraint(Sketcher.Constraint("Equal", 6, 10))
sketch1.addConstraint(Sketcher.Constraint("Equal", 9, 11))
sketch1.addConstraint(Sketcher.Constraint("Equal", 11, 13))
sketch1.addConstraint(Sketcher.Constraint("Equal", 10, 14))
sketch1.addConstraint(Sketcher.Constraint("Equal", 13, 15))
sketch1.addConstraint(Sketcher.Constraint("Equal", 15, 17))
sketch1.addConstraint(Sketcher.Constraint("Diameter", 64, 6.0))
sketch1.addConstraint(Sketcher.Constraint("Diameter", 67, 15.0))
sketch1.addConstraint(Sketcher.Constraint("DistanceX", 18, 2, 18, 1, 4.0))
sketch1.addConstraint(Sketcher.Constraint("Distance", 6, 4.0))
sketch1.addConstraint(Sketcher.Constraint("DistanceX", 65, 3, -1, 1, 15.0))
sketch1.addConstraint(Sketcher.Constraint("DistanceY", -1, 1, 69, 3, 15.0))
sketch1.addConstraint(Sketcher.Constraint("DistanceY", 0, 2, -1, 1, 3.0))
sketch1.addConstraint(Sketcher.Constraint("Angle", 6, Q("112.499991 deg")))
sketch1.addConstraint(Sketcher.Constraint("Radius", 0, 24.999892))
sketch1.addConstraint(Sketcher.Constraint("Radius", 8, 25.000075))
sketch1.addConstraint(Sketcher.Constraint("DistanceX", 64, 3, -1, 1, 5.740251))
sketch1.addConstraint(Sketcher.Constraint("DistanceY", -1, 1, 68, 3, 5.740251))
sketch1.addConstraint(Sketcher.Constraint("DistanceX", -1, 1, 1, 2, 29.933259))
sketch1.addConstraint(Sketcher.Constraint("DistanceX", -1, 1, 6, 2, 26.889359))
sketch1.addConstraint(Sketcher.Constraint("DistanceY", -1, 1, 6, 2, 13.302721))
sketch1.addConstraint(Sketcher.Constraint("DistanceY", -1, 1, 7, 2, 12.269592))
sketch1.addConstraint(Sketcher.Constraint("DistanceX", -1, 1, 8, 2, 19.671249))
sketch1.addConstraint(Sketcher.Constraint("DistanceY", -1, 1, 11, 2, 19.671249))
sketch1.addConstraint(Sketcher.Constraint("DistanceX", -1, 1, 12, 2, 12.269592))
sketch1.addConstraint(Sketcher.Constraint("DistanceY", -1, 1, 13, 2, 26.889359))
sketch1.addConstraint(Sketcher.Constraint("DistanceY", -1, 1, 17, 2, 29.933259))
sketch1.addConstraint(Sketcher.Constraint("Distance", 1, 5.210767))
sketch1.addConstraint(Sketcher.Constraint("DistanceX", -1, 1, 0, 3, 0.000106))
sketch1.addConstraint(Sketcher.Constraint("DistanceY", 64, 3, -1, 1, 13.858193))
sketch1.addConstraint(Sketcher.Constraint("DistanceX", -1, 1, 66, 3, 10.606602))
sketch1.addConstraint(Sketcher.Constraint("DistanceY", 66, 3, -1, 1, 10.606602))
sketch1.addConstraint(Sketcher.Constraint("DistanceX", -1, 1, 68, 3, 13.858193))
sketch1.addConstraint(Sketcher.Constraint("DistanceY", -1, 1, 8, 2, 15.428608))
pad1 = doc.addObject("PartDesign::Pad", "Pad")
body.addObject(pad1)
pad1.Profile = sketch1
pad1.Length = 25

doc.recompute()
